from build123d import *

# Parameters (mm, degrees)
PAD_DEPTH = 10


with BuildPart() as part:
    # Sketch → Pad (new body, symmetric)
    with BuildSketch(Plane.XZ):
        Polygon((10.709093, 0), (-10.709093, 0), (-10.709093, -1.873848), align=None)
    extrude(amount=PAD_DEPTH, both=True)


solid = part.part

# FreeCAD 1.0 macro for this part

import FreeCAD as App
import Part
import Sketcher
from FreeCAD import Vector
Q = App.Units.Quantity

doc = App.newDocument("Part")
body = doc.addObject("PartDesign::Body", "Body")

sketch1 = body.newObject("Sketcher::SketchObject", "Sketch")
sketch1.AttachmentSupport = (doc.getObject("XZ_Plane"), [""])
sketch1.MapMode = "FlatFace"
sketch1.addGeometry([
    Part.LineSegment(Vector(10.7, 0, 0), Vector(-10.7, 0, 0)),
    Part.LineSegment(Vector(-10.7, 0, 0), Vector(-10.7, -1.9, 0)),
    Part.LineSegment(Vector(-10.7, -1.9, 0), Vector(10.7, 0, 0)),
], False)
sketch1.addConstraint([
    Sketcher.Constraint("Coincident", 0, 2, 1, 1),
    Sketcher.Constraint("Coincident", 1, 2, 2, 1),
    Sketcher.Constraint("Coincident", 2, 2, 0, 1),
    Sketcher.Constraint("Horizontal", 0),
    Sketcher.Constraint("Vertical", 1),
    Sketcher.Constraint("Symmetric", 0, 2, 2, 2, -1, 1),
    Sketcher.Constraint("Angle", 2, Q("4.999999 deg")),
    Sketcher.Constraint("Distance", 2, Q("21.5 mm")),
])
pad1 = body.newObject("PartDesign::Pad", "Pad")
pad1.Profile = sketch1
pad1.Length = 20
pad1.Midplane = True

doc.recompute()
